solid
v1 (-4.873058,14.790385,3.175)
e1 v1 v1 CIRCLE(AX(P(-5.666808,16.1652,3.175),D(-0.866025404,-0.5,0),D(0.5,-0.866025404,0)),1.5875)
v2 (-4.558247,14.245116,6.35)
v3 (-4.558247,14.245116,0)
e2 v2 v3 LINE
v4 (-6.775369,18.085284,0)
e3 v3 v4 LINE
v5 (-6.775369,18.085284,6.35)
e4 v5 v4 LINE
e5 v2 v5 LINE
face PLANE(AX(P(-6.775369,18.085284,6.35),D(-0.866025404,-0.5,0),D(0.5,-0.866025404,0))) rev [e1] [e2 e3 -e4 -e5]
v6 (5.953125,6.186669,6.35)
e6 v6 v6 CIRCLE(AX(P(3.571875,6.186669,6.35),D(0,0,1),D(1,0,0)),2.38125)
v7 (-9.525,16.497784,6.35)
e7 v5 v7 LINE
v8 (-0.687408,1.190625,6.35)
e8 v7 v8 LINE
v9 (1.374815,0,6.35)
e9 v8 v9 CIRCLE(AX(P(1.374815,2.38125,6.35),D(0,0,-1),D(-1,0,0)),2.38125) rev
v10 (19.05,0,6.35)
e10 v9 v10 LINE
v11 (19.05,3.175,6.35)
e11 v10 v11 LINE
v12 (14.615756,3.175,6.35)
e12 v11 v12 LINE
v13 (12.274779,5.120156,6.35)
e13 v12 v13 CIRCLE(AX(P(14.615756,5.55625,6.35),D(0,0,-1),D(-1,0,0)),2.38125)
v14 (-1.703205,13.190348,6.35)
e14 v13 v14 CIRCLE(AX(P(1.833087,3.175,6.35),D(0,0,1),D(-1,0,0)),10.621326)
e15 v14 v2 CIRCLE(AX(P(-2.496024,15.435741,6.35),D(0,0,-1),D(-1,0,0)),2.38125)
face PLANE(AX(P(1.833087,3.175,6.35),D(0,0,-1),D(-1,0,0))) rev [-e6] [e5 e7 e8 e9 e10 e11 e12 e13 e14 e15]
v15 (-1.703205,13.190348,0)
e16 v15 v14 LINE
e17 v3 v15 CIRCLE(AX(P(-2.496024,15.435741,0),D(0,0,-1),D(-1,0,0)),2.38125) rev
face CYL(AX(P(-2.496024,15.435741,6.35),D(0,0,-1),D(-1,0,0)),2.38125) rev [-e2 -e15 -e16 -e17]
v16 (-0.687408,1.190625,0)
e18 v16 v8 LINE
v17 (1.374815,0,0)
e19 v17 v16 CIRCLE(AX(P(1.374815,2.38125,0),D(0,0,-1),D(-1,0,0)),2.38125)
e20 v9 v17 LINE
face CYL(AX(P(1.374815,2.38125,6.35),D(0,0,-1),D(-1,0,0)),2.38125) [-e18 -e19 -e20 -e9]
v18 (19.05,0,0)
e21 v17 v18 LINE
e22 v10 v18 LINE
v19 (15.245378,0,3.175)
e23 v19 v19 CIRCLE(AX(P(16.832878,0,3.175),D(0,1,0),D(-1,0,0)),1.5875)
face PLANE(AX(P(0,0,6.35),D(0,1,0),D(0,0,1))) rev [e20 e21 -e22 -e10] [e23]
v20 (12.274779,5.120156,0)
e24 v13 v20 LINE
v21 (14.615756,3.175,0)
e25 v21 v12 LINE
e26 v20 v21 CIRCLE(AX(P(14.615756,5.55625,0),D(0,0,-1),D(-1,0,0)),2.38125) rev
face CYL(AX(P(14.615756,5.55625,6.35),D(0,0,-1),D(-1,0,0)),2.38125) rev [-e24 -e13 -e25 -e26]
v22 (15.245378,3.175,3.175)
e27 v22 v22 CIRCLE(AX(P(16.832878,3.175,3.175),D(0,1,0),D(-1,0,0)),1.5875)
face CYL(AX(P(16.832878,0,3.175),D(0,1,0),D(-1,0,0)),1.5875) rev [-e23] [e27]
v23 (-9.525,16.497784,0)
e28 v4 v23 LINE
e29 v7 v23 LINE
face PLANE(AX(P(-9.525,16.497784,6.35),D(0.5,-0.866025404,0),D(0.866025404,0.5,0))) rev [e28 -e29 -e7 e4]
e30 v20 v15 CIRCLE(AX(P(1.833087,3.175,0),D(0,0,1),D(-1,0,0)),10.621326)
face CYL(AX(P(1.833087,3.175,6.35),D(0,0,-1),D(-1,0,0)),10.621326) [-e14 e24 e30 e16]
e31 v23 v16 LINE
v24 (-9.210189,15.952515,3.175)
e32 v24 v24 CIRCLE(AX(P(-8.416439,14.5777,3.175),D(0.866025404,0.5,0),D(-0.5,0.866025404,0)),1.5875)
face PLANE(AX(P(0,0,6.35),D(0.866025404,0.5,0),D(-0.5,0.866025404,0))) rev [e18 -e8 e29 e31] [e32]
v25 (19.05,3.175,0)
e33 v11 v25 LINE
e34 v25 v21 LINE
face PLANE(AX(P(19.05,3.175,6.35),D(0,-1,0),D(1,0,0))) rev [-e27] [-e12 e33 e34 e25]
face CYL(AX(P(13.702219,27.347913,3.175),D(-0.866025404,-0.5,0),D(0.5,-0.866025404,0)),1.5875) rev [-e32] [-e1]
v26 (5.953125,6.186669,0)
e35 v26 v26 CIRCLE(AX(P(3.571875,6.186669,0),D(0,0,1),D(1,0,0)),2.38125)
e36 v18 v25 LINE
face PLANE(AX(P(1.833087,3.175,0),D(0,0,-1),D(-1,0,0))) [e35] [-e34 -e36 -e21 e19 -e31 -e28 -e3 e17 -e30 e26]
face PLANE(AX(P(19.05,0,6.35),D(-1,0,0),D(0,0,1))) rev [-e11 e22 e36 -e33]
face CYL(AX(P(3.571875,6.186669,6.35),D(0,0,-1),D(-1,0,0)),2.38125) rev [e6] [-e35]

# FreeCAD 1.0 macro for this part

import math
import FreeCAD as App
import Part
import Sketcher
Q = App.Units.Quantity


def edges_at(feature, points):
    """Names of the edges that pass closest to the given points."""
    edges = feature.Shape.Edges
    near = lambda p: min(range(len(edges)), key=lambda i: edges[i].distToShape(Part.Vertex(*p))[0])
    return sorted({f"Edge{near(p) + 1}" for p in points})

doc = App.newDocument("Part")
params = doc.addObject("Spreadsheet::Sheet", "Params")
for row, (alias, value) in enumerate([
    ("sketch1_diameter", "0.1875 in"),
    ("sketch1_width", "0.75 in"),
    ("sketch1_length", "0.75 in"),
    ("sketch1_height", "0.125 in"),
    ("sketch1_length2", "0.125 in"),
    ("pad1_length", "0.25 in"),
    ("fillet_radius", "0.09375 in"),
    ("sketch2_diameter", "0.125 in"),
], start=1):
    params.set(f"A{row}", alias)
    params.set(f"B{row}", "=" + value)
    params.setAlias(f"B{row}", alias)

body = doc.addObject("PartDesign::Body", "Body")

sketch1 = doc.addObject("Sketcher::SketchObject", "Sketch")
body.addObject(sketch1)
sketch1.AttachmentSupport = (doc.XY_Plane, [""])
sketch1.MapMode = "FlatFace"
sketch1.addGeometry([
    Part.LineSegment(App.Vector(0, 0, 0), App.Vector(19.1, 0, 0)),
    Part.LineSegment(App.Vector(19.1, 0, 0), App.Vector(19.1, 3.2, 0)),
    Part.LineSegment(App.Vector(19.1, 3.2, 0), App.Vector(12.5, 3.2, 0)),
    Part.ArcOfCircle(Part.Circle(App.Vector(1.8, 3.2, 0), App.Vector(0, 0, 1), 10.6), math.radians(0), math.radians(120)),
    Part.LineSegment(App.Vector(-3.5, 12.4, 0), App.Vector(-6.8, 18.1, 0)),
    Part.LineSegment(App.Vector(-6.8, 18.1, 0), App.Vector(-9.5, 16.5, 0)),
    Part.LineSegment(App.Vector(-9.5, 16.5, 0), App.Vector(0, 0, 0)),
    Part.Circle(App.Vector(3.6, 6.2, 0), App.Vector(0, 0, 1), 2.4),
], False)
sketch1.addConstraint([
    Sketcher.Constraint("Coincident", 0, 2, 1, 1),
    Sketcher.Constraint("Coincident", 1, 2, 2, 1),
    Sketcher.Constraint("Coincident", 2, 2, 3, 1),
    Sketcher.Constraint("Coincident", 3, 2, 4, 1),
    Sketcher.Constraint("Coincident", 4, 2, 5, 1),
    Sketcher.Constraint("Coincident", 5, 2, 6, 1),
    Sketcher.Constraint("Coincident", 6, 2, 0, 1),
    Sketcher.Constraint("Horizontal", 0),
    Sketcher.Constraint("Vertical", 1),
    Sketcher.Constraint("Horizontal", 2),
    Sketcher.Constraint("Coincident", 6, 2, -1, 1),
    Sketcher.Constraint("Perpendicular", 4, 5),
    Sketcher.Constraint("Perpendicular", 5, 6),
    Sketcher.Constraint("Horizontal", 3, 3, 1, 2),
    Sketcher.Constraint("Diameter", 7, Q("0.1875 in")),
    Sketcher.Constraint("Angle", 4, Q("120 deg")),
    Sketcher.Constraint("DistanceX", 0, 1, 0, 2, Q("0.75 in")),
    Sketcher.Constraint("Distance", 6, Q("0.75 in")),
    Sketcher.Constraint("DistanceY", 1, 1, 1, 2, Q("0.125 in")),
    Sketcher.Constraint("Distance", 5, Q("0.125 in")),
    Sketcher.Constraint("DistanceX", -1, 1, 7, 3, Q("0.140625 in")),
    Sketcher.Constraint("Radius", 3, Q("10.621326 mm")),
    Sketcher.Constraint("DistanceX", 2, 2, 2, 1, Q("6.595587 mm")),
    Sketcher.Constraint("DistanceY", -1, 1, 7, 3, Q("6.186669 mm")),
])
sketch1.setExpression("Constraints[14]", "Params.sketch1_diameter")
sketch1.setExpression("Constraints[16]", "Params.sketch1_width")
sketch1.setExpression("Constraints[17]", "Params.sketch1_length")
sketch1.setExpression("Constraints[18]", "Params.sketch1_height")
sketch1.setExpression("Constraints[19]", "Params.sketch1_length2")
pad1 = doc.addObject("PartDesign::Pad", "Pad")
body.addObject(pad1)
pad1.Profile = sketch1
pad1.setExpression("Length", "Params.pad1_length")
doc.recompute()

fillet = doc.addObject("PartDesign::Fillet", "Fillet")
body.addObject(fillet)
fillet.Base = (pad1, edges_at(pad1, [(-3.478, 12.373, 3.175), (12.454, 3.175, 3.175), (0, 0, 3.175)]))
fillet.setExpression("Radius", "Params.fillet_radius")

sketch2 = doc.addObject("Sketcher::SketchObject", "Sketch001")
body.addObject(sketch2)
sketch2.AttachmentSupport = (doc.XZ_Plane, [""])
sketch2.MapMode = "FlatFace"
sketch2.AttachmentOffset = App.Placement(App.Vector(0, 0, -0.125 * 25.4), App.Rotation())
sketch2.addGeometry(Part.Circle(App.Vector(16.8, 3.2, 0), App.Vector(0, 0, 1), 1.6), False)
sketch2.addConstraint([
    Sketcher.Constraint("Diameter", 0, Q("0.125 in")),
    Sketcher.Constraint("DistanceY", -1, 1, 0, 3, Q("0.125 in")),
    Sketcher.Constraint("DistanceX", -1, 1, 0, 3, Q("16.832878 mm")),
])
sketch2.setExpression("Constraints[0]", "Params.sketch2_diameter")
pocket1 = doc.addObject("PartDesign::Pocket", "Pocket")
body.addObject(pocket1)
pocket1.Profile = sketch2
pocket1.Type = "ThroughAll"
pocket1.Reversed = True
doc.recompute()

polarpattern = doc.addObject("PartDesign::PolarPattern", "PolarPattern")
body.addObject(polarpattern)
polarpattern.Originals = [pocket1]
polarpattern.Axis = (doc.Z_Axis, [""])
polarpattern.Angle = 360
polarpattern.Occurrences = 3
body.Tip = polarpattern

doc.recompute()
